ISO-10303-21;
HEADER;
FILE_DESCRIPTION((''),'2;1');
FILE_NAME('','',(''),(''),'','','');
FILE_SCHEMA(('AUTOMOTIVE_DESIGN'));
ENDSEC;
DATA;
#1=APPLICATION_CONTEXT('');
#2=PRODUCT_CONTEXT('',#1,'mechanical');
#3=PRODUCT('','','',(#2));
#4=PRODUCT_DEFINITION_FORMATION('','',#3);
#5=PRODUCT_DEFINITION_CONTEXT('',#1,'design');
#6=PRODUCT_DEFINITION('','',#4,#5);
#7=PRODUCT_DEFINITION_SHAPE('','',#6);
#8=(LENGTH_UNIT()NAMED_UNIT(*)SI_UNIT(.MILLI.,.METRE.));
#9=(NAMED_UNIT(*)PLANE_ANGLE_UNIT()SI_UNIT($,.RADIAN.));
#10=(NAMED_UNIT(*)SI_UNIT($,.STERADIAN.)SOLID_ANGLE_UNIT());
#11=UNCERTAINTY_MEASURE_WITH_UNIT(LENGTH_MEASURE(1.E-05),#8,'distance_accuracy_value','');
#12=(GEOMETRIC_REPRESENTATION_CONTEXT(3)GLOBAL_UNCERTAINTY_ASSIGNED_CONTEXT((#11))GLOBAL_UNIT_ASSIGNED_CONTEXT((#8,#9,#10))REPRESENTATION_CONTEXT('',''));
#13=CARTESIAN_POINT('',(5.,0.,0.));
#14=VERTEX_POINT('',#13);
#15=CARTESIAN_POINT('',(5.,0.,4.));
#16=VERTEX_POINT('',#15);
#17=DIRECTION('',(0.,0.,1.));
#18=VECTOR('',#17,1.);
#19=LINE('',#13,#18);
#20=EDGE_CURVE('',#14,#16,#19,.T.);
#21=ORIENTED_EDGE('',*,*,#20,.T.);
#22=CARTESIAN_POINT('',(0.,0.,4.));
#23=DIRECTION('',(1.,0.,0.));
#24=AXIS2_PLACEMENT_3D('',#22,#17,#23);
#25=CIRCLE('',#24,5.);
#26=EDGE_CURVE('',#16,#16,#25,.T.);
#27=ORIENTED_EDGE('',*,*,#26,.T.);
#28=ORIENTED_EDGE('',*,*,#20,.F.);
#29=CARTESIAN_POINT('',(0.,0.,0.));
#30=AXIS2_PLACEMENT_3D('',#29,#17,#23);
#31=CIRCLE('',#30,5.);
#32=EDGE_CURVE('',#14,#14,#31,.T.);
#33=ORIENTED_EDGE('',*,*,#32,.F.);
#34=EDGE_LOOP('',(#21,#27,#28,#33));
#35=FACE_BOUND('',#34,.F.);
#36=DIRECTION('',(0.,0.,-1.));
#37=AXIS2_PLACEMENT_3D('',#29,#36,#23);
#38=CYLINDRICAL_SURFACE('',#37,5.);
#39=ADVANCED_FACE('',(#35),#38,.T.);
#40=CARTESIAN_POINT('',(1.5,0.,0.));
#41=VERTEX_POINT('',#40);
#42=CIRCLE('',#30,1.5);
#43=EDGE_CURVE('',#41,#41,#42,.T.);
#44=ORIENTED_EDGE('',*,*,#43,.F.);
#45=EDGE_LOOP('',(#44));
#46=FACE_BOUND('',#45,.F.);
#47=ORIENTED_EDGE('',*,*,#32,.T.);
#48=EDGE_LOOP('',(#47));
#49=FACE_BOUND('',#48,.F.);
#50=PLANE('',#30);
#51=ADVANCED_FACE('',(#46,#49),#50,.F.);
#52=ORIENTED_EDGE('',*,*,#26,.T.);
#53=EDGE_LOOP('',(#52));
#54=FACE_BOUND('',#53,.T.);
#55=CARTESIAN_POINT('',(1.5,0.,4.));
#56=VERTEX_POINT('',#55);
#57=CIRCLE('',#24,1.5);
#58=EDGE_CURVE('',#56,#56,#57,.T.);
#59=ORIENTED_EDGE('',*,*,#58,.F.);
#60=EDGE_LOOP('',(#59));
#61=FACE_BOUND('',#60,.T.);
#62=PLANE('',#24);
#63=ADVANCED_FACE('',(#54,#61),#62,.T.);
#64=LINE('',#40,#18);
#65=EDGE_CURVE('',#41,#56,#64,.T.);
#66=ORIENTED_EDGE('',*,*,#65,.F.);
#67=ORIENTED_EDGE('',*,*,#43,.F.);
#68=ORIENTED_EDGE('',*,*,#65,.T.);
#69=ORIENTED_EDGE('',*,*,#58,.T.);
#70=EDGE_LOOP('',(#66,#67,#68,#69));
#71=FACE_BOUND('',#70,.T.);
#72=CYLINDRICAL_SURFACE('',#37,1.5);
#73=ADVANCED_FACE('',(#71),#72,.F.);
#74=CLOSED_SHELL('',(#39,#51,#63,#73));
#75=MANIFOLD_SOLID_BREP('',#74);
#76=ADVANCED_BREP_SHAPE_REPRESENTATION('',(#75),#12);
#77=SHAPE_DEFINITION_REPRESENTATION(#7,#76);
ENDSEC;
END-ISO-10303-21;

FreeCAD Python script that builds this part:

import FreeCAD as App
import Part
import Sketcher
from FreeCAD import Vector
Q = App.Units.Quantity

doc = App.newDocument("Part")
body = doc.addObject("PartDesign::Body", "Body")

# Sketch on XY plane
sketch1 = body.newObject("Sketcher::SketchObject", "Sketch")
sketch1.AttachmentSupport = (doc.getObject("XY_Plane"), [""])
sketch1.MapMode = "FlatFace"
sketch1.addGeometry([
    Part.Circle(Vector(0, 0, 0), Vector(0, 0, 1), 5),
    Part.Circle(Vector(0, 0, 0), Vector(0, 0, 1), 1.5),
], False)
sketch1.addConstraint([
    Sketcher.Constraint("Coincident", 0, 3, -1, 1),
    Sketcher.Constraint("Coincident", 1, 3, -1, 1),
    Sketcher.Constraint("Diameter", 0, Q("10 mm")),
    Sketcher.Constraint("Diameter", 1, Q("3 mm")),
])
pad1 = body.newObject("PartDesign::Pad", "Pad")
pad1.Profile = sketch1
pad1.Length = 4

doc.recompute()
